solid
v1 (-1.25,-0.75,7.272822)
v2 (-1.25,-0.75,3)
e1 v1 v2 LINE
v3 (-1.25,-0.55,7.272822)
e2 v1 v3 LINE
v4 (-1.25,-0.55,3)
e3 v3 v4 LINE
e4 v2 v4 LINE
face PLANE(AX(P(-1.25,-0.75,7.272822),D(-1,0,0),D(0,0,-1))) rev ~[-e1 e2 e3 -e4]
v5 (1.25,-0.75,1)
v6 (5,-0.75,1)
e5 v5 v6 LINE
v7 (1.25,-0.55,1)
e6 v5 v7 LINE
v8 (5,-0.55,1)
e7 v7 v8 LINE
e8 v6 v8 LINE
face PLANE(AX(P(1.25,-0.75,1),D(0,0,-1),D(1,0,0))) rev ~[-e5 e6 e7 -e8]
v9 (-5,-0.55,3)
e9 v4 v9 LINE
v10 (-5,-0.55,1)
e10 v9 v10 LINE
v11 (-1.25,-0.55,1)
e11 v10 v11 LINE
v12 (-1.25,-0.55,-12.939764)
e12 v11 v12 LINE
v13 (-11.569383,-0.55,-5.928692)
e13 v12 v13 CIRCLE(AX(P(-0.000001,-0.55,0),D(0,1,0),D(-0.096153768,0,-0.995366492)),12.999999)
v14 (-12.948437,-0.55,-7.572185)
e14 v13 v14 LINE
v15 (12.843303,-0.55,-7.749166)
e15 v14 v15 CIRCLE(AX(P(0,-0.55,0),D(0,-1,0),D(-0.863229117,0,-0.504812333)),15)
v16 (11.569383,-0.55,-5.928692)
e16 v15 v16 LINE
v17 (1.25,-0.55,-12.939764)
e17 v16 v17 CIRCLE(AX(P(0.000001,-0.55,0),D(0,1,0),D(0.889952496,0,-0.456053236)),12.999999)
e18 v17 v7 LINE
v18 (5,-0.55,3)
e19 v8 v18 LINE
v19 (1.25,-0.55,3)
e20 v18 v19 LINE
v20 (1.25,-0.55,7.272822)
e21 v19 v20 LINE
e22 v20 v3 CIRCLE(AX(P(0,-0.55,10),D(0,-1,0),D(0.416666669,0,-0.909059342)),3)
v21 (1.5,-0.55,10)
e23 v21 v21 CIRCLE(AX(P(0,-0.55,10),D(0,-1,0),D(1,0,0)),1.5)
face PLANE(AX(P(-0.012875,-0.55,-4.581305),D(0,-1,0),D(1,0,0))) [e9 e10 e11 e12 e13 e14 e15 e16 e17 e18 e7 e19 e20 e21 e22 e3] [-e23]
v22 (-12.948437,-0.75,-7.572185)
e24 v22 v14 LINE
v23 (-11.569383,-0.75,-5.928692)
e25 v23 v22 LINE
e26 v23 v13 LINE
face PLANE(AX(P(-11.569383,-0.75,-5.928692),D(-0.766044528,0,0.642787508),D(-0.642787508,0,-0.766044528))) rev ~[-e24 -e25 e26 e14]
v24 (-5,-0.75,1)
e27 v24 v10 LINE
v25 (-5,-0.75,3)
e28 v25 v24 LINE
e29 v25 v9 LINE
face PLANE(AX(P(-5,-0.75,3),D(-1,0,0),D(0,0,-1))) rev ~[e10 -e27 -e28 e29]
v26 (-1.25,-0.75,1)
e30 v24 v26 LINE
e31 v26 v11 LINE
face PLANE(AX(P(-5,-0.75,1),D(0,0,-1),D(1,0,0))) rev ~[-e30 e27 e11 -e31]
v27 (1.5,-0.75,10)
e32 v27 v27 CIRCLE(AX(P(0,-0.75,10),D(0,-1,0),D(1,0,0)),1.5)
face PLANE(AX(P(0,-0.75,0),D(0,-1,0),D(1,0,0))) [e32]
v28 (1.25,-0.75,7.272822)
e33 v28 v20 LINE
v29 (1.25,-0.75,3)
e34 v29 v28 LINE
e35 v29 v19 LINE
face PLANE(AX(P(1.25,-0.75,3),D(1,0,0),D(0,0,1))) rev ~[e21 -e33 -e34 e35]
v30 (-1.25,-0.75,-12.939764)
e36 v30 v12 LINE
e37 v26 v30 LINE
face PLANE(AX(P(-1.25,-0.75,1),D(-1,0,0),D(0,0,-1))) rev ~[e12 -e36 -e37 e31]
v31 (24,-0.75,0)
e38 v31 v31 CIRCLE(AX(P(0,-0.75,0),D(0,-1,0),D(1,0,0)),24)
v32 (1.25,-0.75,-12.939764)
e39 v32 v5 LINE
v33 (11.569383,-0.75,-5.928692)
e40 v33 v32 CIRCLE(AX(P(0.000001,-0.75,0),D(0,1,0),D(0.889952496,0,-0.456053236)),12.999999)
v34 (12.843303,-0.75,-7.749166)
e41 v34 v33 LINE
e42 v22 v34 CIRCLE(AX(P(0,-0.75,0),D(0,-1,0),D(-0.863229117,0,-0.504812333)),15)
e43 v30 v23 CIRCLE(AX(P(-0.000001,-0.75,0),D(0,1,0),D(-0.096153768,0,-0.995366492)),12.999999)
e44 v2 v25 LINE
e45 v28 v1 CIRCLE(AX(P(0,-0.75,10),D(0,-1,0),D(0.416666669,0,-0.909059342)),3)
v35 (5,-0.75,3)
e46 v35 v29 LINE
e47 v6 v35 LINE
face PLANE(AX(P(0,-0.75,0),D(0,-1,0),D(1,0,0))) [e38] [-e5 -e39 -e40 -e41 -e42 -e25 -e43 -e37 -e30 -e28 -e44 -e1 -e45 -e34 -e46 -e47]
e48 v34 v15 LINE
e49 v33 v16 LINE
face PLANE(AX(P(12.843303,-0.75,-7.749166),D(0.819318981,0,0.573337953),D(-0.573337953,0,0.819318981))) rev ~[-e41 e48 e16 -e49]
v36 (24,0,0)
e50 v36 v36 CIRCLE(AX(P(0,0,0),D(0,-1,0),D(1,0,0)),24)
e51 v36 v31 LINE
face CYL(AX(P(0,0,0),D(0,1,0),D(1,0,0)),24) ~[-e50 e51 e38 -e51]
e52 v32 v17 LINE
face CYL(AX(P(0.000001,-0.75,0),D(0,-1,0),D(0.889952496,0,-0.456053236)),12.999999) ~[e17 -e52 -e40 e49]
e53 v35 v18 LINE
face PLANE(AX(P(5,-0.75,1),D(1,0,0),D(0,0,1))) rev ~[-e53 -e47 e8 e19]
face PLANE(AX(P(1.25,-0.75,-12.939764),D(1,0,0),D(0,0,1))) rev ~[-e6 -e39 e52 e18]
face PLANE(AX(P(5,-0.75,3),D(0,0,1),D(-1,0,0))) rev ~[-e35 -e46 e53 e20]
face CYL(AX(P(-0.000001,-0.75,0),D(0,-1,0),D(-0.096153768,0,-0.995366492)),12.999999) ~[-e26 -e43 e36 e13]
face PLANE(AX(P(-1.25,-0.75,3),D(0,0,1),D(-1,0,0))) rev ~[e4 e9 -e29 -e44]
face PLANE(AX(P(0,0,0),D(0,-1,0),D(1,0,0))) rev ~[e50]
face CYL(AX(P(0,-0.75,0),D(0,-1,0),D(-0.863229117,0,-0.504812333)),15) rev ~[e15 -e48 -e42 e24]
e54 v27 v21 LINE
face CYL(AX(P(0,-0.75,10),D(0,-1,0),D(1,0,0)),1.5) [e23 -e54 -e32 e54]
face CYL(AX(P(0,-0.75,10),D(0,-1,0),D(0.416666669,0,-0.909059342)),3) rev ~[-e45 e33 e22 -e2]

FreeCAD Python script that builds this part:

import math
import FreeCAD as App
import Part
import Sketcher
from FreeCAD import Vector
Q = App.Units.Quantity

doc = App.newDocument("Part")
params = doc.addObject("Spreadsheet::Sheet", "Params")
for row, (alias, value) in enumerate([
    ("sketch1_diameter", "48 mm"),
    ("pad1_length", "0.75 mm"),
    ("sketch2_diameter", "3 mm"),
    ("sketch2_radius", "15 mm"),
    ("sketch2_radius2", "12.999999 mm"),
    ("sketch2_radius3", "3 mm"),
    ("sketch2_height", "2 mm"),
    ("pocket1_length", "0.2 mm"),
], start=1):
    params.set(f"A{row}", alias)
    params.set(f"B{row}", "=" + value)
    params.setAlias(f"B{row}", alias)

body = doc.addObject("PartDesign::Body", "Body")

# Sketch on XZ plane
sketch1 = body.newObject("Sketcher::SketchObject", "Sketch")
sketch1.AttachmentSupport = (doc.getObject("XZ_Plane"), [""])
sketch1.MapMode = "FlatFace"
sketch1.addGeometry(Part.Circle(Vector(0, 0, 0), Vector(0, 0, 1), 24), False)
sketch1.addConstraint([
    Sketcher.Constraint("Coincident", 0, 3, -1, 1),
    Sketcher.Constraint("Diameter", 0, Q("48 mm")),
])
sketch1.setExpression("Constraints[1]", "Params.sketch1_diameter")
pad1 = body.newObject("PartDesign::Pad", "Pad")
pad1.Profile = sketch1
pad1.setExpression("Length", "Params.pad1_length")

# Sketch on XZ plane
sketch2 = body.newObject("Sketcher::SketchObject", "Sketch001")
sketch2.AttachmentSupport = (doc.getObject("XZ_Plane"), [""])
sketch2.MapMode = "FlatFace"
sketch2.AttachmentOffset = App.Placement(Vector(0, 0, 0.75), App.Rotation())
sketch2.addGeometry([
    Part.LineSegment(Vector(-11.6, -5.9, 0), Vector(-12.9, -7.6, 0)),  # 0
    Part.ArcOfCircle(Part.Circle(Vector(0, 0, 0), Vector(0, 0, 1), 15), math.radians(-150), math.radians(-31)),  # 1
    Part.LineSegment(Vector(12.8, -7.7, 0), Vector(11.6, -5.9, 0)),  # 2
    Part.ArcOfCircle(Part.Circle(Vector(0, 0, 0), Vector(0, 0, 1), 13), math.radians(-84), math.radians(-27)),  # 3
    Part.LineSegment(Vector(1.2, -12.9, 0), Vector(1.2, 1, 0)),  # 4
    Part.LineSegment(Vector(1.2, 1, 0), Vector(5, 1, 0)),  # 5
    Part.LineSegment(Vector(5, 1, 0), Vector(5, 3, 0)),  # 6
    Part.LineSegment(Vector(5, 3, 0), Vector(1.2, 3, 0)),  # 7
    Part.LineSegment(Vector(1.2, 3, 0), Vector(1.2, 7.3, 0)),  # 8
    Part.ArcOfCircle(Part.Circle(Vector(0, 10, 0), Vector(0, 0, 1), 3), math.radians(-65), math.radians(245)),  # 9
    Part.LineSegment(Vector(-1.2, 7.3, 0), Vector(-1.2, 3, 0)),  # 10
    Part.LineSegment(Vector(-1.2, 3, 0), Vector(-5, 3, 0)),  # 11
    Part.LineSegment(Vector(-5, 3, 0), Vector(-5, 1, 0)),  # 12
    Part.LineSegment(Vector(-5, 1, 0), Vector(-1.2, 1, 0)),  # 13
    Part.LineSegment(Vector(-1.2, 1, 0), Vector(-1.2, -12.9, 0)),  # 14
    Part.ArcOfCircle(Part.Circle(Vector(0, 0, 0), Vector(0, 0, 1), 13), math.radians(-153), math.radians(-96)),  # 15
    Part.Circle(Vector(0, 10, 0), Vector(0, 0, 1), 1.5),  # 16
], False)
sketch2.addConstraint([
    Sketcher.Constraint("Coincident", 0, 2, 1, 1),
    Sketcher.Constraint("Coincident", 1, 2, 2, 1),
    Sketcher.Constraint("Coincident", 2, 2, 3, 2),
    Sketcher.Constraint("Coincident", 3, 1, 4, 1),
    Sketcher.Constraint("Coincident", 4, 2, 5, 1),
    Sketcher.Constraint("Coincident", 5, 2, 6, 1),
    Sketcher.Constraint("Coincident", 6, 2, 7, 1),
    Sketcher.Constraint("Coincident", 7, 2, 8, 1),
    Sketcher.Constraint("Coincident", 8, 2, 9, 1),
    Sketcher.Constraint("Coincident", 9, 2, 10, 1),
    Sketcher.Constraint("Coincident", 10, 2, 11, 1),
    Sketcher.Constraint("Coincident", 11, 2, 12, 1),
    Sketcher.Constraint("Coincident", 12, 2, 13, 1),
    Sketcher.Constraint("Coincident", 13, 2, 14, 1),
    Sketcher.Constraint("Coincident", 14, 2, 15, 2),
    Sketcher.Constraint("Coincident", 15, 1, 0, 1),
    Sketcher.Constraint("Vertical", 4),
    Sketcher.Constraint("Horizontal", 5),
    Sketcher.Constraint("Vertical", 6),
    Sketcher.Constraint("Horizontal", 7),
    Sketcher.Constraint("Vertical", 8),
    Sketcher.Constraint("Vertical", 10),
    Sketcher.Constraint("Horizontal", 11),
    Sketcher.Constraint("Vertical", 12),
    Sketcher.Constraint("Horizontal", 13),
    Sketcher.Constraint("Vertical", 14),
    Sketcher.Constraint("Coincident", 1, 3, -1, 1),
    Sketcher.Constraint("Coincident", 3, 3, -1, 1),
    Sketcher.Constraint("Coincident", 15, 3, -1, 1),
    Sketcher.Constraint("Coincident", 16, 3, 9, 3),
    Sketcher.Constraint("Equal", 3, 15),
    Sketcher.Constraint("Symmetric", 8, 2, 9, 2, -2),
    Sketcher.Constraint("Symmetric", 6, 2, 11, 2, -2),
    Sketcher.Constraint("Symmetric", 4, 2, 13, 2, -2),
    Sketcher.Constraint("Horizontal", 2, 2, 15, 1),
    Sketcher.Constraint("Vertical", 4, 2, 7, 2),
    Sketcher.Constraint("Diameter", 16, Q("3 mm")),
    Sketcher.Constraint("Radius", 1, Q("15 mm")),
    Sketcher.Constraint("Radius", 3, Q("12.999999 mm")),
    Sketcher.Constraint("Radius", 9, Q("3 mm")),
    Sketcher.Constraint("DistanceY", 6, 1, 6, 2, Q("2 mm")),
    Sketcher.Constraint("Angle", 0, Q("-129.999992 deg")),
    Sketcher.Constraint("DistanceY", -1, 1, 9, 3, Q("10 mm")),
    Sketcher.Constraint("DistanceY", -1, 1, 4, 2, Q("1 mm")),
    Sketcher.Constraint("DistanceX", -1, 1, 5, 2, Q("5 mm")),
    Sketcher.Constraint("DistanceX", 5, 1, 5, 2, Q("3.75 mm")),
    Sketcher.Constraint("DistanceX", 3, 3, 1, 2, Q("12.843302 mm")),
    Sketcher.Constraint("DistanceY", 15, 1, -1, 1, Q("5.928692 mm")),
])
sketch2.setExpression("Constraints[36]", "Params.sketch2_diameter")
sketch2.setExpression("Constraints[37]", "Params.sketch2_radius")
sketch2.setExpression("Constraints[38]", "Params.sketch2_radius2")
sketch2.setExpression("Constraints[39]", "Params.sketch2_radius3")
sketch2.setExpression("Constraints[40]", "Params.sketch2_height")
pocket1 = body.newObject("PartDesign::Pocket", "Pocket")
pocket1.Profile = sketch2
pocket1.setExpression("Length", "Params.pocket1_length")

doc.recompute()
